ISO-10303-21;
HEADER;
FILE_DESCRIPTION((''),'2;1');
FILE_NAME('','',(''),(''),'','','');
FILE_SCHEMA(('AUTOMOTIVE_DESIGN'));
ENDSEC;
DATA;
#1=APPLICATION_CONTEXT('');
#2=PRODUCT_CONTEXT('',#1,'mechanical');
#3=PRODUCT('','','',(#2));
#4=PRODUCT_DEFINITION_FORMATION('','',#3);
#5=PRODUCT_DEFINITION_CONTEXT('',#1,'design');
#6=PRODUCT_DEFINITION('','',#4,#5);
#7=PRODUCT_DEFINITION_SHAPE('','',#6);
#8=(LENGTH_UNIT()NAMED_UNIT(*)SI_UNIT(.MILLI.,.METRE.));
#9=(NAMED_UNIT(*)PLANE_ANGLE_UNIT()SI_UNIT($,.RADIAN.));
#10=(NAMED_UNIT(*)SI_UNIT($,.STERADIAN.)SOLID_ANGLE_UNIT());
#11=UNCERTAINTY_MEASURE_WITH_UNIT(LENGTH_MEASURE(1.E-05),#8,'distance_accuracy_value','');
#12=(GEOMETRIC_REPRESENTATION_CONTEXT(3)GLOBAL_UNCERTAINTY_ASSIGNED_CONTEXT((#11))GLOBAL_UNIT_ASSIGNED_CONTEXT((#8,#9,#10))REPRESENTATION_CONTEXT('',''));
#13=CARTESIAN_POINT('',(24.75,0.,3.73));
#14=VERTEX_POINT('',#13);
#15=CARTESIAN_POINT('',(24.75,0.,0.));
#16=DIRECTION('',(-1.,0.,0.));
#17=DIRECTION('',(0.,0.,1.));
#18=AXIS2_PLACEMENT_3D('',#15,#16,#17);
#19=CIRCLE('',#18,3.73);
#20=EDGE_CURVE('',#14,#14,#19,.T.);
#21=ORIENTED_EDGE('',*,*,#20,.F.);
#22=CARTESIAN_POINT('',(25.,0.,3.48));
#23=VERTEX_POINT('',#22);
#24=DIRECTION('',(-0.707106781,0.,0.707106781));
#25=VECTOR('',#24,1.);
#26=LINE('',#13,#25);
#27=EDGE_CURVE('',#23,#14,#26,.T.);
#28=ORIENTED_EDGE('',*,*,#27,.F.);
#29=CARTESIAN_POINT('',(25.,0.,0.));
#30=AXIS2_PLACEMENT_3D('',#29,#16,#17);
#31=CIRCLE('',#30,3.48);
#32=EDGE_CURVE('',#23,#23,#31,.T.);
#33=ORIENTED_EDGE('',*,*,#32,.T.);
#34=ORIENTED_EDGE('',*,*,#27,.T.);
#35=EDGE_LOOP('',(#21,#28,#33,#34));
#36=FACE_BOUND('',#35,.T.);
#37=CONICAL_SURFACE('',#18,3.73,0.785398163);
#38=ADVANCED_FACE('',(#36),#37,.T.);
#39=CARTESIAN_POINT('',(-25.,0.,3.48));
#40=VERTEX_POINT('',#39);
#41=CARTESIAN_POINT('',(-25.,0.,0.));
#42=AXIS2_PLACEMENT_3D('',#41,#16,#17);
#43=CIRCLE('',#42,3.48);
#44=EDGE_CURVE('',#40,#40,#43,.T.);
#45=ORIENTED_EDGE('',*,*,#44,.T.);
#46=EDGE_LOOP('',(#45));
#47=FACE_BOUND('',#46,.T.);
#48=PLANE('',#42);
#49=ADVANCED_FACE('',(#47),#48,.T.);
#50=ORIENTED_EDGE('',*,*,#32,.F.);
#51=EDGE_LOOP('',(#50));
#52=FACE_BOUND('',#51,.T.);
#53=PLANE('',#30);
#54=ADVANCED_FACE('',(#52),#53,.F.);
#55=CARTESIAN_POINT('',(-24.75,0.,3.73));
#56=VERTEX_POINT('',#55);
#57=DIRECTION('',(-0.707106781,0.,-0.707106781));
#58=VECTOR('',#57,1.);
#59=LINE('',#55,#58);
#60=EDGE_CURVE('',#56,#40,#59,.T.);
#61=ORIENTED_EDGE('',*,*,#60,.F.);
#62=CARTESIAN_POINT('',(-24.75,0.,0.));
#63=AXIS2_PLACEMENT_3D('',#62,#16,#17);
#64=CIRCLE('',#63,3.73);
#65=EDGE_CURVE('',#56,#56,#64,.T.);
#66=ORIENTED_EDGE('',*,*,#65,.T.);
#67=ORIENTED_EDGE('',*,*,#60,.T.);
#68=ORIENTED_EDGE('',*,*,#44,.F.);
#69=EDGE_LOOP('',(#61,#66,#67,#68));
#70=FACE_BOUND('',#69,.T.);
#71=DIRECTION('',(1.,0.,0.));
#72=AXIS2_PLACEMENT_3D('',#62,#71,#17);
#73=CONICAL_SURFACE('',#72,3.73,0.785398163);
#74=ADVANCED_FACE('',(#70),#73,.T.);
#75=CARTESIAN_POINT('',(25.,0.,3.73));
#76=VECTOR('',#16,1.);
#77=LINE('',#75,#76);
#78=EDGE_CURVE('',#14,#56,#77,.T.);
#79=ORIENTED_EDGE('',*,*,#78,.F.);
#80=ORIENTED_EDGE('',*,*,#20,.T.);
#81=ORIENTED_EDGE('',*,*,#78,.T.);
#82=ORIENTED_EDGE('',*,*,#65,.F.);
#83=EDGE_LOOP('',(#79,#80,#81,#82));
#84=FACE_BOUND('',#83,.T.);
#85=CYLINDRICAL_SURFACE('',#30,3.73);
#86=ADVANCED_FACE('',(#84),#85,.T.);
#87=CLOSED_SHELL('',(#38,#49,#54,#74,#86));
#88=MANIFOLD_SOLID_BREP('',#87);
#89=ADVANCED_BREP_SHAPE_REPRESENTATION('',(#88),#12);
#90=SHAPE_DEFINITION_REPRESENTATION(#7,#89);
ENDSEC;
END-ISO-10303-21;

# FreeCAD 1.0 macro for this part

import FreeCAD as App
import Part
import Sketcher
Q = App.Units.Quantity


def edges_at(feature, points):
    """Names of the edges that pass closest to the given points."""
    edges = feature.Shape.Edges
    near = lambda p: min(range(len(edges)), key=lambda i: edges[i].distToShape(Part.Vertex(*p))[0])
    return sorted({f"Edge{near(p) + 1}" for p in points})


def add_polygon(sketch, points):
    """Adds a closed chain of lines whose ends are joined by coincident constraints."""
    first, n = sketch.GeometryCount, len(points)
    for a, b in zip(points, points[1:] + points[:1]):
        sketch.addGeometry(Part.LineSegment(App.Vector(*a, 0), App.Vector(*b, 0)), False)
    for i in range(n):
        sketch.addConstraint(Sketcher.Constraint("Coincident", first + i, 2, first + (i + 1) % n, 1))

doc = App.newDocument("Part")
body = doc.addObject("PartDesign::Body", "Body")

# Sketch on XZ plane
sketch1 = doc.addObject("Sketcher::SketchObject", "Sketch")
body.addObject(sketch1)
sketch1.AttachmentSupport = (doc.XZ_Plane, [""])
sketch1.MapMode = "FlatFace"
add_polygon(sketch1, [(25, 0), (25, 3.73), (-25, 3.73), (-25, 0)])  # lines 0-3
sketch1.addConstraint(Sketcher.Constraint("Vertical", 0))
sketch1.addConstraint(Sketcher.Constraint("Horizontal", 1))
sketch1.addConstraint(Sketcher.Constraint("Vertical", 2))
sketch1.addConstraint(Sketcher.Constraint("Horizontal", 3))
sketch1.addConstraint(Sketcher.Constraint("Symmetric", 2, 2, 3, 2, -1, 1))
sketch1.addConstraint(Sketcher.Constraint("DistanceX", 1, 2, 1, 1, Q("50 mm")))
sketch1.addConstraint(Sketcher.Constraint("DistanceY", 0, 1, 0, 2, Q("3.73 mm")))
revolution = doc.addObject("PartDesign::Revolution", "Revolution")
body.addObject(revolution)
revolution.Profile = sketch1
revolution.ReferenceAxis = (sketch1, ["H_Axis"])
revolution.Angle = 360
doc.recompute()

chamfer = doc.addObject("PartDesign::Chamfer", "Chamfer")
body.addObject(chamfer)
chamfer.Base = (revolution, edges_at(revolution, [(25, 0, -3.73), (-25, 0, -3.73)]))
chamfer.Size = 0.25

doc.recompute()
